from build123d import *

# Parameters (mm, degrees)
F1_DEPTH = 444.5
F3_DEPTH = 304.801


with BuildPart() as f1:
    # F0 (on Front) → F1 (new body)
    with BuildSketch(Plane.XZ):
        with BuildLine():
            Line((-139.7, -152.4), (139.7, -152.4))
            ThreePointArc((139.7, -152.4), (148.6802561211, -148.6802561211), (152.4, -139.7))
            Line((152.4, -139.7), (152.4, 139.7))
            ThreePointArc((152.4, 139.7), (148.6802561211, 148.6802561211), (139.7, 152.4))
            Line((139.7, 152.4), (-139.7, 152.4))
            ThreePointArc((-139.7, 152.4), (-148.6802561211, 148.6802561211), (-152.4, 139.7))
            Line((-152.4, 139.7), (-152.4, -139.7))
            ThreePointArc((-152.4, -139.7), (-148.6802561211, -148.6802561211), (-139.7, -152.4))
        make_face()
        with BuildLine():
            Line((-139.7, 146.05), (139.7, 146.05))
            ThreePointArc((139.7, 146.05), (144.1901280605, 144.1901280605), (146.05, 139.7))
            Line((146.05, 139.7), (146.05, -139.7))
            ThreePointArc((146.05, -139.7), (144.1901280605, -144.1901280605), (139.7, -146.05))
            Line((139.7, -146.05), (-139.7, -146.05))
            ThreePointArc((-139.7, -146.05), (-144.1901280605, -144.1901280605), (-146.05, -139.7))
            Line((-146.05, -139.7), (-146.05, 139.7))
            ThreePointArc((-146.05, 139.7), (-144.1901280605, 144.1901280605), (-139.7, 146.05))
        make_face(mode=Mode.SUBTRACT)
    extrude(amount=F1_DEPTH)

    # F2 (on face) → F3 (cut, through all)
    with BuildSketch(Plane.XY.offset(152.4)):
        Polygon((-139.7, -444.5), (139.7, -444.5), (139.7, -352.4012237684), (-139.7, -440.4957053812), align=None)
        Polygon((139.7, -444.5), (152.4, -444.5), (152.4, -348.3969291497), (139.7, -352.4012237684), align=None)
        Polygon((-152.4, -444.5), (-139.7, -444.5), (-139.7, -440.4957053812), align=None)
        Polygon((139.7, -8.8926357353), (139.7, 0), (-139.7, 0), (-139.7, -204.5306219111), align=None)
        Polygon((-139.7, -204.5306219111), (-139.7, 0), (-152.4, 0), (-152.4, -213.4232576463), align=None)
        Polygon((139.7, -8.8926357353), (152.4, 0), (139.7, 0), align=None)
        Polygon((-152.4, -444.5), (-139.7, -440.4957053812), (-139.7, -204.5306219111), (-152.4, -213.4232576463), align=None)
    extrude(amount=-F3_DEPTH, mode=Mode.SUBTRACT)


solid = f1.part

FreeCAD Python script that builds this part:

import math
import FreeCAD as App
import Part
import Sketcher
Q = App.Units.Quantity


def add_polygon(sketch, points):
    """Adds a closed chain of lines whose ends are joined by coincident constraints."""
    first, n = sketch.GeometryCount, len(points)
    for a, b in zip(points, points[1:] + points[:1]):
        sketch.addGeometry(Part.LineSegment(App.Vector(*a, 0), App.Vector(*b, 0)), False)
    for i in range(n):
        sketch.addConstraint(Sketcher.Constraint("Coincident", first + i, 2, first + (i + 1) % n, 1))

doc = App.newDocument("Part")
params = doc.addObject("Spreadsheet::Sheet", "Params")
for row, (alias, value) in enumerate([
    ("sketch1_radius", "0.5 in"),
    ("sketch1_width", "11 in"),
    ("sketch1_radius2", "0.25 in"),
    ("pad1_length", "17.5 in"),
    ("sketch2_width", "12 in"),
    ("sketch2_height", "17.5 in"),
], start=1):
    params.set(f"A{row}", alias)
    params.set(f"B{row}", "=" + value)
    params.setAlias(f"B{row}", alias)

body = doc.addObject("PartDesign::Body", "Body")

# Sketch on XZ plane
sketch1 = body.newObject("Sketcher::SketchObject", "Sketch")
sketch1.AttachmentSupport = (doc.getObject("XZ_Plane"), [""])
sketch1.MapMode = "FlatFace"
sketch1.addGeometry([
    Part.LineSegment(App.Vector(-140, -152, 0), App.Vector(140, -152, 0)),  # 0
    Part.ArcOfCircle(Part.Circle(App.Vector(140, -140, 0), App.Vector(0, 0, 1), 13), math.radians(-90), math.radians(0)),  # 1
    Part.LineSegment(App.Vector(152, -140, 0), App.Vector(152, 140, 0)),  # 2
    Part.ArcOfCircle(Part.Circle(App.Vector(140, 140, 0), App.Vector(0, 0, 1), 13), math.radians(0), math.radians(90)),  # 3
    Part.LineSegment(App.Vector(140, 152, 0), App.Vector(-140, 152, 0)),  # 4
    Part.ArcOfCircle(Part.Circle(App.Vector(-140, 140, 0), App.Vector(0, 0, 1), 13), math.radians(90), math.radians(180)),  # 5
    Part.LineSegment(App.Vector(-152, 140, 0), App.Vector(-152, -140, 0)),  # 6
    Part.ArcOfCircle(Part.Circle(App.Vector(-140, -140, 0), App.Vector(0, 0, 1), 13), math.radians(180), math.radians(270)),  # 7
    Part.ArcOfCircle(Part.Circle(App.Vector(-140, 140, 0), App.Vector(0, 0, 1), 6), math.radians(90), math.radians(180)),  # 8
    Part.LineSegment(App.Vector(-140, 146, 0), App.Vector(140, 146, 0)),  # 9
    Part.ArcOfCircle(Part.Circle(App.Vector(140, 140, 0), App.Vector(0, 0, 1), 6), math.radians(0), math.radians(90)),  # 10
    Part.LineSegment(App.Vector(146, 140, 0), App.Vector(146, -140, 0)),  # 11
    Part.ArcOfCircle(Part.Circle(App.Vector(140, -140, 0), App.Vector(0, 0, 1), 6), math.radians(-90), math.radians(0)),  # 12
    Part.LineSegment(App.Vector(140, -146, 0), App.Vector(-140, -146, 0)),  # 13
    Part.ArcOfCircle(Part.Circle(App.Vector(-140, -140, 0), App.Vector(0, 0, 1), 6), math.radians(180), math.radians(270)),  # 14
    Part.LineSegment(App.Vector(-146, -140, 0), App.Vector(-146, 140, 0)),  # 15
], False)
sketch1.addConstraint([
    Sketcher.Constraint("Tangent", 0, 2, 1, 1),
    Sketcher.Constraint("Tangent", 1, 2, 2, 1),
    Sketcher.Constraint("Tangent", 2, 2, 3, 1),
    Sketcher.Constraint("Tangent", 3, 2, 4, 1),
    Sketcher.Constraint("Tangent", 4, 2, 5, 1),
    Sketcher.Constraint("Tangent", 5, 2, 6, 1),
    Sketcher.Constraint("Tangent", 6, 2, 7, 1),
    Sketcher.Constraint("Tangent", 7, 2, 0, 1),
    Sketcher.Constraint("Tangent", 8, 1, 9, 1),
    Sketcher.Constraint("Tangent", 9, 2, 10, 2),
    Sketcher.Constraint("Tangent", 10, 1, 11, 1),
    Sketcher.Constraint("Tangent", 11, 2, 12, 2),
    Sketcher.Constraint("Tangent", 12, 1, 13, 1),
    Sketcher.Constraint("Tangent", 13, 2, 14, 2),
    Sketcher.Constraint("Tangent", 14, 1, 15, 1),
    Sketcher.Constraint("Tangent", 15, 2, 8, 2),
    Sketcher.Constraint("Horizontal", 0),
    Sketcher.Constraint("Vertical", 2),
    Sketcher.Constraint("Horizontal", 4),
    Sketcher.Constraint("Vertical", 6),
    Sketcher.Constraint("Horizontal", 9),
    Sketcher.Constraint("Vertical", 11),
    Sketcher.Constraint("Horizontal", 13),
    Sketcher.Constraint("Vertical", 15),
    Sketcher.Constraint("Coincident", 8, 3, 5, 3),
    Sketcher.Constraint("Coincident", 10, 3, 3, 3),
    Sketcher.Constraint("Coincident", 12, 3, 1, 3),
    Sketcher.Constraint("Equal", 1, 3),
    Sketcher.Constraint("Equal", 3, 5),
    Sketcher.Constraint("Equal", 5, 7),
    Sketcher.Constraint("Equal", 12, 14),
    Sketcher.Constraint("Symmetric", 1, 3, 5, 3, -1, 1),
    Sketcher.Constraint("Equal", 13, 2),
    Sketcher.Constraint("Radius", 1, Q("0.5 in")),
    Sketcher.Constraint("DistanceX", 0, 1, 0, 2, Q("11 in")),
    Sketcher.Constraint("Radius", 8, Q("0.25 in")),
])
sketch1.setExpression("Constraints[33]", "Params.sketch1_radius")
sketch1.setExpression("Constraints[34]", "Params.sketch1_width")
sketch1.setExpression("Constraints[35]", "Params.sketch1_radius2")
pad1 = body.newObject("PartDesign::Pad", "Pad")
pad1.Profile = sketch1
pad1.setExpression("Length", "Params.pad1_length")

# Sketch on XY plane
sketch2 = body.newObject("Sketcher::SketchObject", "Sketch001")
sketch2.AttachmentSupport = (doc.getObject("XY_Plane"), [""])
sketch2.MapMode = "FlatFace"
sketch2.AttachmentOffset = App.Placement(App.Vector(0, 0, 6 * 25.4), App.Rotation())
add_polygon(sketch2, [(152, -444), (152, -348), (140, -352), (-140, -440), (-140, -205), (140, -9), (152, 0), (-152, 0), (-152, -444)])  # lines 0-8
sketch2.addConstraint([
    Sketcher.Constraint("Vertical", 0),
    Sketcher.Constraint("Vertical", 3),
    Sketcher.Constraint("Horizontal", 6),
    Sketcher.Constraint("Vertical", 7),
    Sketcher.Constraint("Horizontal", 8),
    Sketcher.Constraint("Symmetric", 5, 2, 6, 2, -1, 1),
    Sketcher.Constraint("Parallel", 1, 2),
    Sketcher.Constraint("Parallel", 4, 5),
    Sketcher.Constraint("Vertical", 1, 2, 4, 2),
    Sketcher.Constraint("Vertical", 0, 2, 5, 2),
    Sketcher.Constraint("DistanceX", 6, 2, 6, 1, Q("12 in")),
    Sketcher.Constraint("DistanceY", 7, 2, 7, 1, Q("17.5 in")),
    Sketcher.Constraint("Angle", 4, Q("35 deg")),
    Sketcher.Constraint("DistanceX", 2, 2, 1, 2, Q("11 in")),
    Sketcher.Constraint("DistanceX", -1, 1, 1, 2, Q("5.5 in")),
    Sketcher.Constraint("Angle", 1, Q("-162.5 deg")),
    Sketcher.Constraint("DistanceY", 0, 1, 0, 2, Q("96.103071 mm")),
])
sketch2.setExpression("Constraints[19]", "Params.sketch2_width")
sketch2.setExpression("Constraints[20]", "Params.sketch2_height")
pocket1 = body.newObject("PartDesign::Pocket", "Pocket")
pocket1.Profile = sketch2
pocket1.Type = "ThroughAll"

doc.recompute()
